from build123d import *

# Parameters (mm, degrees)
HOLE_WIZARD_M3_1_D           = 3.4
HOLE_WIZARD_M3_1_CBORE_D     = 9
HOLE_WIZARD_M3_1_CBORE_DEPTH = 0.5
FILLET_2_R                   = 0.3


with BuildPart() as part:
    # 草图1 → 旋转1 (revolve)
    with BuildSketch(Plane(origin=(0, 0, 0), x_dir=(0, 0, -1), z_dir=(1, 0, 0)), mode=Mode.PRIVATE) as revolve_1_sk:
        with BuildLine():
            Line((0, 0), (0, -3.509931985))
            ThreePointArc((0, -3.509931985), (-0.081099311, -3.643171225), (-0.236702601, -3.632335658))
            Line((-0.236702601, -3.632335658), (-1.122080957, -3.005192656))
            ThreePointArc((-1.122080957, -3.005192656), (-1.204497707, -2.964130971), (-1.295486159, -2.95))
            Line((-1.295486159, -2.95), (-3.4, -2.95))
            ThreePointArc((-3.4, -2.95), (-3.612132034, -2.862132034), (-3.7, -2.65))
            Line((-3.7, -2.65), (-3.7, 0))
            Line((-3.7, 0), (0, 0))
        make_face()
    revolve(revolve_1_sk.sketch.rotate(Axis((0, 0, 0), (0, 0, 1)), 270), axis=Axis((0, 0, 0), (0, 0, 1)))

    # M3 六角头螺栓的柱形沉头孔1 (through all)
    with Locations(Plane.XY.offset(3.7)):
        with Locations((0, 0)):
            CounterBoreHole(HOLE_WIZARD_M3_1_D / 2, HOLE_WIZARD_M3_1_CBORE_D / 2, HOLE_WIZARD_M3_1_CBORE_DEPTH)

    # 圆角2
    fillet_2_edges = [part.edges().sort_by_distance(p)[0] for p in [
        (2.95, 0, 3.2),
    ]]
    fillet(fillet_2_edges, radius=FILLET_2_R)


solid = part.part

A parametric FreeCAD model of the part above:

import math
import FreeCAD as App
import Part
import Sketcher
from FreeCAD import Vector
Q = App.Units.Quantity


def edges_at(feature, points):
    """Names of the edges that pass closest to the given points."""
    edges = feature.Shape.Edges
    near = lambda p: min(range(len(edges)), key=lambda i: edges[i].distToShape(Part.Vertex(*p))[0])
    return sorted({f"Edge{near(p) + 1}" for p in points})

doc = App.newDocument("Part")
body = doc.addObject("PartDesign::Body", "Body")

# Sketch on YZ plane
sketch1 = doc.addObject("Sketcher::SketchObject", "Sketch")
body.addObject(sketch1)
sketch1.AttachmentSupport = (doc.YZ_Plane, [""])
sketch1.MapMode = "FlatFace"
sketch1.addGeometry([
    Part.LineSegment(Vector(-3.51, 0, 0), Vector(0, 0, 0)),  # 0
    Part.LineSegment(Vector(0, 0, 0), Vector(0, 3.7, 0)),  # 1
    Part.LineSegment(Vector(0, 3.7, 0), Vector(-2.65, 3.7, 0)),  # 2
    Part.ArcOfCircle(Part.Circle(Vector(-2.65, 3.4, 0), Vector(0, 0, 1), 0.3), math.radians(90), math.radians(180)),  # 3
    Part.LineSegment(Vector(-2.95, 3.4, 0), Vector(-2.95, 1.3, 0)),  # 4
    Part.ArcOfCircle(Part.Circle(Vector(-3.25, 1.3, 0), Vector(0, 0, 1), 0.3), math.radians(-35), math.radians(0)),  # 5
    Part.LineSegment(Vector(-3.01, 1.12, 0), Vector(-3.63, 0.24, 0)),  # 6
    Part.ArcOfCircle(Part.Circle(Vector(-3.51, 0.15, 0), Vector(0, 0, 1), 0.15), math.radians(145), math.radians(270)),  # 7
], False)
sketch1.addConstraint([
    Sketcher.Constraint("Coincident", 0, 2, 1, 1),
    Sketcher.Constraint("Coincident", 1, 2, 2, 1),
    Sketcher.Constraint("Tangent", 2, 2, 3, 1),
    Sketcher.Constraint("Tangent", 3, 2, 4, 1),
    Sketcher.Constraint("Tangent", 4, 2, 5, 2),
    Sketcher.Constraint("Tangent", 5, 1, 6, 1),
    Sketcher.Constraint("Tangent", 6, 2, 7, 1),
    Sketcher.Constraint("Tangent", 7, 2, 0, 1),
    Sketcher.Constraint("Horizontal", 0),
    Sketcher.Constraint("Vertical", 1),
    Sketcher.Constraint("Horizontal", 2),
    Sketcher.Constraint("Vertical", 4),
    Sketcher.Constraint("Coincident", 0, 2, -1, 1),
    Sketcher.Constraint("Equal", 3, 5),
    Sketcher.Constraint("Radius", 3, Q("0.3 mm")),
    Sketcher.Constraint("Radius", 7, Q("0.15 mm")),
    Sketcher.Constraint("DistanceY", 1, 1, 1, 2, Q("3.7 mm")),
    Sketcher.Constraint("DistanceX", 2, 2, 2, 1, Q("2.65 mm")),
    Sketcher.Constraint("DistanceX", 0, 1, 0, 2, Q("3.509932 mm")),
    Sketcher.Constraint("Distance", 6, Q("1.08499 mm")),
])
revolution = doc.addObject("PartDesign::Revolution", "Revolution")
body.addObject(revolution)
revolution.Profile = sketch1
revolution.ReferenceAxis = (sketch1, ["V_Axis"])
revolution.Angle = 360

# Sketch on XY plane
sketch2 = doc.addObject("Sketcher::SketchObject", "Sketch001")
body.addObject(sketch2)
sketch2.AttachmentSupport = (doc.XY_Plane, [""])
sketch2.MapMode = "FlatFace"
sketch2.AttachmentOffset = App.Placement(Vector(0, 0, 3.7), App.Rotation())
sketch2.addGeometry(Part.Circle(Vector(0, 0, 0), Vector(0, 0, 1), 1.7), False)
sketch2.addConstraint([
    Sketcher.Constraint("Coincident", 0, 3, -1, 1),
    Sketcher.Constraint("Diameter", 0, Q("3.4 mm")),
])
doc.recompute()
hole = doc.addObject("PartDesign::Hole", "Hole")
body.addObject(hole)
hole.Profile = sketch2
hole.ThreadType = "None"
hole.Diameter = 3.4
hole.DepthType = "ThroughAll"
hole.HoleCutType = "Counterbore"
hole.HoleCutDiameter = 9
hole.HoleCutDepth = 0.5
doc.recompute()

fillet = doc.addObject("PartDesign::Fillet", "Fillet")
body.addObject(fillet)
fillet.Base = (hole, edges_at(hole, [(2.95, 0, 3.2)]))
fillet.Radius = 0.3

doc.recompute()
